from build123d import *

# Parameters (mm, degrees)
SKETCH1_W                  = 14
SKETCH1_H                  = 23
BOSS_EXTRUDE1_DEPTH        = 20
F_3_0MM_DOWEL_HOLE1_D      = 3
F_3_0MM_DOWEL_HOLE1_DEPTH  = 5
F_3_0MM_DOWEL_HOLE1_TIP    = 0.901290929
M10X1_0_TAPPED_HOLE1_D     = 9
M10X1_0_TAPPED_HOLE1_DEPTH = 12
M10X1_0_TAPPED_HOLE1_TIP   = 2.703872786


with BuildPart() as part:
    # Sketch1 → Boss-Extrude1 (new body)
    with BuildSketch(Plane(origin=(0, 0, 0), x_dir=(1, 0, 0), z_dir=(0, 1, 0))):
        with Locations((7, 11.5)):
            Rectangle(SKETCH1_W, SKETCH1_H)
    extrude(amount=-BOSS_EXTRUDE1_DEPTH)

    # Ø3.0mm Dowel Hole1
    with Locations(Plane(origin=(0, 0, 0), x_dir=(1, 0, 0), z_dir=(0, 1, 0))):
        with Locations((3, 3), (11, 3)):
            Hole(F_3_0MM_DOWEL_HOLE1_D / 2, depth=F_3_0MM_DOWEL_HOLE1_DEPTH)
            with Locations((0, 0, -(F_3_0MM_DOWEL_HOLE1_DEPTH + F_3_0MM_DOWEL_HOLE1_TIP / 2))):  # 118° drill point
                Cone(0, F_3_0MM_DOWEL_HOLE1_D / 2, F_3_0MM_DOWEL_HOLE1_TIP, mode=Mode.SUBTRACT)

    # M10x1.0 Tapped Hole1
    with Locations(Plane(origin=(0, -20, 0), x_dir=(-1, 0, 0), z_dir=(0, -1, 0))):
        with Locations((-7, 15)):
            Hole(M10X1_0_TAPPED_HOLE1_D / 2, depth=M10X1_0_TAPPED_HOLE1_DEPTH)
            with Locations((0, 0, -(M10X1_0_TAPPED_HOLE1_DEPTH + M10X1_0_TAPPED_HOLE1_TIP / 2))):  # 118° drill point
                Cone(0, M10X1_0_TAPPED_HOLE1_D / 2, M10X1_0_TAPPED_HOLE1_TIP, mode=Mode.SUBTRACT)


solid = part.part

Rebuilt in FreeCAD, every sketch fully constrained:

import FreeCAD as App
import Part
import Sketcher


def add_polygon(sketch, points):
    """Adds a closed chain of lines whose ends are joined by coincident constraints."""
    first, n = sketch.GeometryCount, len(points)
    for a, b in zip(points, points[1:] + points[:1]):
        sketch.addGeometry(Part.LineSegment(App.Vector(*a, 0), App.Vector(*b, 0)), False)
    for i in range(n):
        sketch.addConstraint(Sketcher.Constraint("Coincident", first + i, 2, first + (i + 1) % n, 1))

doc = App.newDocument("Part")
body = doc.addObject("PartDesign::Body", "Body")

sketch1 = body.newObject("Sketcher::SketchObject", "Sketch")
sketch1.AttachmentSupport = (doc.getObject("XZ_Plane"), [""])
sketch1.MapMode = "FlatFace"
add_polygon(sketch1, [(0, -23), (0, 0), (14, 0), (14, -23)])
sketch1.addConstraint([
    Sketcher.Constraint("Vertical", 0),
    Sketcher.Constraint("Horizontal", 1),
    Sketcher.Constraint("Vertical", 2),
    Sketcher.Constraint("Horizontal", 3),
    Sketcher.Constraint("Coincident", 0, 2, -1, 1),
    Sketcher.Constraint("DistanceX", 1, 1, 1, 2, 14.0),
    Sketcher.Constraint("DistanceY", 0, 1, 0, 2, 23.0),
])
pad1 = body.newObject("PartDesign::Pad", "Pad")
pad1.Profile = sketch1
pad1.Length = 20

sketch2 = body.newObject("Sketcher::SketchObject", "Sketch001")
sketch2.AttachmentSupport = (doc.getObject("XZ_Plane"), [""])
sketch2.MapMode = "FlatFace"
sketch2.addGeometry([
    Part.Circle(App.Vector(3, -3, 0), App.Vector(0, 0, 1), 1.5),
    Part.Circle(App.Vector(11, -3, 0), App.Vector(0, 0, 1), 1.5),
], False)
sketch2.addConstraint([
    Sketcher.Constraint("Equal", 0, 1),
    Sketcher.Constraint("Horizontal", 0, 3, 1, 3),
    Sketcher.Constraint("Diameter", 0, 3.0),
    Sketcher.Constraint("DistanceX", -1, 1, 0, 3, 3.0),
    Sketcher.Constraint("DistanceY", 0, 3, -1, 1, 3.0),
    Sketcher.Constraint("DistanceX", -1, 1, 1, 3, 11.0),
])
doc.recompute()
hole = body.newObject("PartDesign::Hole", "Hole")
hole.Profile = sketch2
hole.ThreadType = "None"
hole.Diameter = 3
hole.DepthType = "Dimension"
hole.Depth = 5
hole.DrillPoint = "Angled"
hole.DrillPointAngle = 118
hole.Reversed = True

sketch3 = body.newObject("Sketcher::SketchObject", "Sketch002")
sketch3.AttachmentSupport = (doc.getObject("XZ_Plane"), [""])
sketch3.MapMode = "FlatFace"
sketch3.AttachmentOffset = App.Placement(App.Vector(0, 0, 20), App.Rotation())
sketch3.addGeometry(Part.Circle(App.Vector(7, -15, 0), App.Vector(0, 0, 1), 4.5), False)
sketch3.addConstraint([
    Sketcher.Constraint("Diameter", 0, 9.0),
    Sketcher.Constraint("DistanceX", -1, 1, 0, 3, 7.0),
    Sketcher.Constraint("DistanceY", 0, 3, -1, 1, 15.0),
])
doc.recompute()
hole2 = body.newObject("PartDesign::Hole", "Hole001")
hole2.Profile = sketch3
hole2.ThreadType = "None"
hole2.Diameter = 9
hole2.DepthType = "Dimension"
hole2.Depth = 12
hole2.DrillPoint = "Angled"
hole2.DrillPointAngle = 118

doc.recompute()
